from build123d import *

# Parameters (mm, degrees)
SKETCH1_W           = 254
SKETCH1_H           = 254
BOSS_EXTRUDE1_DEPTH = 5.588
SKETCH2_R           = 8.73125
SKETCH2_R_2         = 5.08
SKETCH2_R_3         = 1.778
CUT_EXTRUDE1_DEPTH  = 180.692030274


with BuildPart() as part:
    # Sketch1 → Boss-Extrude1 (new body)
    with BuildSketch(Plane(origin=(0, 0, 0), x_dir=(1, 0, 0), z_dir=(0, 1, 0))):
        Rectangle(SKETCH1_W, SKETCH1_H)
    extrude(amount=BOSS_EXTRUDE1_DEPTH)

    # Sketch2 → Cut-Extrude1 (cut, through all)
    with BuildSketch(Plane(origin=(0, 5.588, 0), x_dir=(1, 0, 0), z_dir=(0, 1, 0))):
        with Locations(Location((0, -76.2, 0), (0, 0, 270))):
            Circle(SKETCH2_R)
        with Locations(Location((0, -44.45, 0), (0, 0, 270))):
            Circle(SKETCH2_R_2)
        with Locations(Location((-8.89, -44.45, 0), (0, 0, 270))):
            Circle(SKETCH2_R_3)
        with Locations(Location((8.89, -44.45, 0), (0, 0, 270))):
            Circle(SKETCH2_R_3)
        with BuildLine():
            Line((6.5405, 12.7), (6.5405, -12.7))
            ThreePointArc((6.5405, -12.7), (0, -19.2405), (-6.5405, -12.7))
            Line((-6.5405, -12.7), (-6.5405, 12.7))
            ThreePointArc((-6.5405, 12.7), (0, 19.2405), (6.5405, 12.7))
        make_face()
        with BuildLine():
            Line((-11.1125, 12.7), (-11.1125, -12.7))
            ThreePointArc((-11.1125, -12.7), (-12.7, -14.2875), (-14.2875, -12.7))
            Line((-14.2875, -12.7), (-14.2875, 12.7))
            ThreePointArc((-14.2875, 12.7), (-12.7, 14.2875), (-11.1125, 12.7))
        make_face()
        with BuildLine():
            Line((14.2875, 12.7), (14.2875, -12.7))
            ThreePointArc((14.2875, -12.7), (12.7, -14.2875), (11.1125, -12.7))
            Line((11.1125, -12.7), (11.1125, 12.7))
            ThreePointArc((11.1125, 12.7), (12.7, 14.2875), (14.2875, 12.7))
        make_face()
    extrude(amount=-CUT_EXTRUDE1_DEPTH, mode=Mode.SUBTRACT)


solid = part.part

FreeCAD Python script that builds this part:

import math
import FreeCAD as App
import Part
import Sketcher
from FreeCAD import Vector
Q = App.Units.Quantity


def add_polygon(sketch, points):
    """Adds a closed chain of lines whose ends are joined by coincident constraints."""
    first, n = sketch.GeometryCount, len(points)
    for a, b in zip(points, points[1:] + points[:1]):
        sketch.addGeometry(Part.LineSegment(App.Vector(*a, 0), App.Vector(*b, 0)), False)
    for i in range(n):
        sketch.addConstraint(Sketcher.Constraint("Coincident", first + i, 2, first + (i + 1) % n, 1))

doc = App.newDocument("Part")
params = doc.addObject("Spreadsheet::Sheet", "Params")
for row, (alias, value) in enumerate([
    ("sketch1_width", "10 in"),
    ("pad1_length", "0.22 in"),
    ("sketch2_diameter", "0.4 in"),
    ("sketch2_diameter2", "0.14 in"),
    ("sketch2_height", "1 in"),
    ("sketch2_diameter3", "0.6875 in"),
    ("sketch2_radius", "0.0625 in"),
], start=1):
    params.set(f"A{row}", alias)
    params.set(f"B{row}", "=" + value)
    params.setAlias(f"B{row}", alias)

body = doc.addObject("PartDesign::Body", "Body")

# Sketch on XZ plane
sketch1 = body.newObject("Sketcher::SketchObject", "Sketch")
sketch1.AttachmentSupport = (doc.getObject("XZ_Plane"), [""])
sketch1.MapMode = "FlatFace"
add_polygon(sketch1, [(-127, -127), (-127, 127), (127, 127), (127, -127)])  # lines 0-3
sketch1.addConstraint([
    Sketcher.Constraint("Vertical", 0),
    Sketcher.Constraint("Horizontal", 1),
    Sketcher.Constraint("Vertical", 2),
    Sketcher.Constraint("Horizontal", 3),
    Sketcher.Constraint("Symmetric", 0, 2, 2, 2, -1, 1),
    Sketcher.Constraint("Equal", 3, 0),
    Sketcher.Constraint("DistanceX", 1, 1, 1, 2, Q("10 in")),
])
sketch1.setExpression("Constraints[10]", "Params.sketch1_width")
pad1 = body.newObject("PartDesign::Pad", "Pad")
pad1.Profile = sketch1
pad1.setExpression("Length", "Params.pad1_length")
pad1.Reversed = True

# Sketch on XZ plane
sketch2 = body.newObject("Sketcher::SketchObject", "Sketch001")
sketch2.AttachmentSupport = (doc.getObject("XZ_Plane"), [""])
sketch2.MapMode = "FlatFace"
sketch2.AttachmentOffset = App.Placement(Vector(0, 0, -0.22 * 25.4), App.Rotation())
sketch2.addGeometry([
    Part.Circle(Vector(0, 76.2, 0), Vector(0, 0, 1), 8.7),  # 0
    Part.Circle(Vector(0, 44.5, 0), Vector(0, 0, 1), 5.1),  # 1
    Part.Circle(Vector(-8.9, 44.5, 0), Vector(0, 0, 1), 1.8),  # 2
    Part.Circle(Vector(8.9, 44.5, 0), Vector(0, 0, 1), 1.8),  # 3
    Part.LineSegment(Vector(6.5, 12.7, 0), Vector(6.5, -12.7, 0)),  # 4
    Part.ArcOfCircle(Part.Circle(Vector(0, -12.7, 0), Vector(0, 0, 1), 6.5), math.radians(180), math.radians(360)),  # 5
    Part.LineSegment(Vector(-6.5, -12.7, 0), Vector(-6.5, 12.7, 0)),  # 6
    Part.ArcOfCircle(Part.Circle(Vector(0, 12.7, 0), Vector(0, 0, 1), 6.5), math.radians(0), math.radians(180)),  # 7
    Part.LineSegment(Vector(-11.1, 12.7, 0), Vector(-11.1, -12.7, 0)),  # 8
    Part.ArcOfCircle(Part.Circle(Vector(-12.7, -12.7, 0), Vector(0, 0, 1), 1.6), math.radians(180), math.radians(360)),  # 9
    Part.LineSegment(Vector(-14.3, -12.7, 0), Vector(-14.3, 12.7, 0)),  # 10
    Part.ArcOfCircle(Part.Circle(Vector(-12.7, 12.7, 0), Vector(0, 0, 1), 1.6), math.radians(0), math.radians(180)),  # 11
    Part.LineSegment(Vector(14.3, 12.7, 0), Vector(14.3, -12.7, 0)),  # 12
    Part.ArcOfCircle(Part.Circle(Vector(12.7, -12.7, 0), Vector(0, 0, 1), 1.6), math.radians(180), math.radians(360)),  # 13
    Part.LineSegment(Vector(11.1, -12.7, 0), Vector(11.1, 12.7, 0)),  # 14
    Part.ArcOfCircle(Part.Circle(Vector(12.7, 12.7, 0), Vector(0, 0, 1), 1.6), math.radians(0), math.radians(180)),  # 15
], False)
sketch2.addConstraint([
    Sketcher.Constraint("Tangent", 4, 2, 5, 2),
    Sketcher.Constraint("Tangent", 5, 1, 6, 1),
    Sketcher.Constraint("Tangent", 6, 2, 7, 2),
    Sketcher.Constraint("Tangent", 7, 1, 4, 1),
    Sketcher.Constraint("Tangent", 8, 2, 9, 2),
    Sketcher.Constraint("Tangent", 9, 1, 10, 1),
    Sketcher.Constraint("Tangent", 10, 2, 11, 2),
    Sketcher.Constraint("Tangent", 11, 1, 8, 1),
    Sketcher.Constraint("Tangent", 12, 2, 13, 2),
    Sketcher.Constraint("Tangent", 13, 1, 14, 1),
    Sketcher.Constraint("Tangent", 14, 2, 15, 2),
    Sketcher.Constraint("Tangent", 15, 1, 12, 1),
    Sketcher.Constraint("Vertical", 4),
    Sketcher.Constraint("Vertical", 6),
    Sketcher.Constraint("Vertical", 8),
    Sketcher.Constraint("Vertical", 10),
    Sketcher.Constraint("Vertical", 12),
    Sketcher.Constraint("Vertical", 14),
    Sketcher.Constraint("Equal", 2, 3),
    Sketcher.Constraint("Equal", 11, 13),
    Sketcher.Constraint("Symmetric", 5, 3, 7, 3, -1, 1),
    Sketcher.Constraint("Symmetric", 11, 3, 13, 3, -1, 1),
    Sketcher.Constraint("Symmetric", 2, 3, 3, 3, -2),
    Sketcher.Constraint("PointOnObject", 0, 3, -2),
    Sketcher.Constraint("PointOnObject", 1, 3, -2),
    Sketcher.Constraint("Horizontal", 1, 3, 2, 3),
    Sketcher.Constraint("Horizontal", 5, 3, 9, 3),
    Sketcher.Constraint("Horizontal", 7, 3, 11, 3),
    Sketcher.Constraint("Horizontal", 11, 3, 15, 3),
    Sketcher.Constraint("Diameter", 1, Q("0.4 in")),
    Sketcher.Constraint("Diameter", 2, Q("0.14 in")),
    Sketcher.Constraint("DistanceY", 4, 2, 4, 1, Q("1 in")),
    Sketcher.Constraint("Diameter", 0, Q("0.6875 in")),
    Sketcher.Constraint("DistanceY", -1, 1, 0, 3, Q("3 in")),
    Sketcher.Constraint("Radius", 9, Q("0.0625 in")),
    Sketcher.Constraint("DistanceX", 9, 3, 13, 3, Q("1 in")),
    Sketcher.Constraint("Radius", 5, Q("0.2575 in")),
    Sketcher.Constraint("DistanceX", 2, 3, 3, 3, Q("0.7 in")),
    Sketcher.Constraint("DistanceY", -1, 1, 1, 3, Q("1.75 in")),
])
sketch2.setExpression("Constraints[29]", "Params.sketch2_diameter")
sketch2.setExpression("Constraints[30]", "Params.sketch2_diameter2")
sketch2.setExpression("Constraints[31]", "Params.sketch2_height")
sketch2.setExpression("Constraints[32]", "Params.sketch2_diameter3")
sketch2.setExpression("Constraints[34]", "Params.sketch2_radius")
pocket1 = body.newObject("PartDesign::Pocket", "Pocket")
pocket1.Profile = sketch2
pocket1.Type = "ThroughAll"
pocket1.Reversed = True

doc.recompute()
